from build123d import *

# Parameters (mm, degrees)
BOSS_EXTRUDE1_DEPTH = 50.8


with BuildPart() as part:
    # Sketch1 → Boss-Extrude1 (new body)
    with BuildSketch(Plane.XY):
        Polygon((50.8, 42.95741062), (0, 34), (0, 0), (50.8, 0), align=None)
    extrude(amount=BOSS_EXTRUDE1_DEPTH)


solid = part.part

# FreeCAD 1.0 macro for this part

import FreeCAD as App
import Part
import Sketcher
Q = App.Units.Quantity

doc = App.newDocument("Part")
params = doc.addObject("Spreadsheet::Sheet", "Params")
for row, (alias, value) in enumerate([
    ("sketch1_height", "34 mm"),
    ("sketch1_width", "50.8 mm"),
    ("pad1_length", "50.8 mm"),
], start=1):
    params.set(f"A{row}", alias)
    params.set(f"B{row}", "=" + value)
    params.setAlias(f"B{row}", alias)

body = doc.addObject("PartDesign::Body", "Body")

sketch1 = body.newObject("Sketcher::SketchObject", "Sketch")
sketch1.AttachmentSupport = (doc.getObject("XY_Plane"), [""])
sketch1.MapMode = "FlatFace"
sketch1.addGeometry(Part.LineSegment(App.Vector(50.8, 42.957411, 0), App.Vector(0, 34, 0)), False)
sketch1.addGeometry(Part.LineSegment(App.Vector(0, 34, 0), App.Vector(0, 0, 0)), False)
sketch1.addGeometry(Part.LineSegment(App.Vector(0, 0, 0), App.Vector(50.8, 0, 0)), False)
sketch1.addGeometry(Part.LineSegment(App.Vector(50.8, 0, 0), App.Vector(50.8, 42.957411, 0)), False)
sketch1.addConstraint(Sketcher.Constraint("Coincident", 0, 2, 1, 1))
sketch1.addConstraint(Sketcher.Constraint("Coincident", 1, 2, 2, 1))
sketch1.addConstraint(Sketcher.Constraint("Coincident", 2, 2, 3, 1))
sketch1.addConstraint(Sketcher.Constraint("Coincident", 3, 2, 0, 1))
sketch1.addConstraint(Sketcher.Constraint("Vertical", 1))
sketch1.addConstraint(Sketcher.Constraint("Horizontal", 2))
sketch1.addConstraint(Sketcher.Constraint("Vertical", 3))
sketch1.addConstraint(Sketcher.Constraint("Coincident", 1, 2, -1, 1))
sketch1.addConstraint(Sketcher.Constraint("DistanceY", 1, 2, 1, 1, Q("34 mm")))
sketch1.addConstraint(Sketcher.Constraint("Angle", 0, Q("-170 deg")))
sketch1.addConstraint(Sketcher.Constraint("DistanceX", 2, 1, 2, 2, Q("50.8 mm")))
sketch1.setExpression("Constraints[8]", "Params.sketch1_height")
sketch1.setExpression("Constraints[10]", "Params.sketch1_width")
pad1 = body.newObject("PartDesign::Pad", "Pad")
pad1.Profile = sketch1
pad1.setExpression("Length", "Params.pad1_length")

doc.recompute()
